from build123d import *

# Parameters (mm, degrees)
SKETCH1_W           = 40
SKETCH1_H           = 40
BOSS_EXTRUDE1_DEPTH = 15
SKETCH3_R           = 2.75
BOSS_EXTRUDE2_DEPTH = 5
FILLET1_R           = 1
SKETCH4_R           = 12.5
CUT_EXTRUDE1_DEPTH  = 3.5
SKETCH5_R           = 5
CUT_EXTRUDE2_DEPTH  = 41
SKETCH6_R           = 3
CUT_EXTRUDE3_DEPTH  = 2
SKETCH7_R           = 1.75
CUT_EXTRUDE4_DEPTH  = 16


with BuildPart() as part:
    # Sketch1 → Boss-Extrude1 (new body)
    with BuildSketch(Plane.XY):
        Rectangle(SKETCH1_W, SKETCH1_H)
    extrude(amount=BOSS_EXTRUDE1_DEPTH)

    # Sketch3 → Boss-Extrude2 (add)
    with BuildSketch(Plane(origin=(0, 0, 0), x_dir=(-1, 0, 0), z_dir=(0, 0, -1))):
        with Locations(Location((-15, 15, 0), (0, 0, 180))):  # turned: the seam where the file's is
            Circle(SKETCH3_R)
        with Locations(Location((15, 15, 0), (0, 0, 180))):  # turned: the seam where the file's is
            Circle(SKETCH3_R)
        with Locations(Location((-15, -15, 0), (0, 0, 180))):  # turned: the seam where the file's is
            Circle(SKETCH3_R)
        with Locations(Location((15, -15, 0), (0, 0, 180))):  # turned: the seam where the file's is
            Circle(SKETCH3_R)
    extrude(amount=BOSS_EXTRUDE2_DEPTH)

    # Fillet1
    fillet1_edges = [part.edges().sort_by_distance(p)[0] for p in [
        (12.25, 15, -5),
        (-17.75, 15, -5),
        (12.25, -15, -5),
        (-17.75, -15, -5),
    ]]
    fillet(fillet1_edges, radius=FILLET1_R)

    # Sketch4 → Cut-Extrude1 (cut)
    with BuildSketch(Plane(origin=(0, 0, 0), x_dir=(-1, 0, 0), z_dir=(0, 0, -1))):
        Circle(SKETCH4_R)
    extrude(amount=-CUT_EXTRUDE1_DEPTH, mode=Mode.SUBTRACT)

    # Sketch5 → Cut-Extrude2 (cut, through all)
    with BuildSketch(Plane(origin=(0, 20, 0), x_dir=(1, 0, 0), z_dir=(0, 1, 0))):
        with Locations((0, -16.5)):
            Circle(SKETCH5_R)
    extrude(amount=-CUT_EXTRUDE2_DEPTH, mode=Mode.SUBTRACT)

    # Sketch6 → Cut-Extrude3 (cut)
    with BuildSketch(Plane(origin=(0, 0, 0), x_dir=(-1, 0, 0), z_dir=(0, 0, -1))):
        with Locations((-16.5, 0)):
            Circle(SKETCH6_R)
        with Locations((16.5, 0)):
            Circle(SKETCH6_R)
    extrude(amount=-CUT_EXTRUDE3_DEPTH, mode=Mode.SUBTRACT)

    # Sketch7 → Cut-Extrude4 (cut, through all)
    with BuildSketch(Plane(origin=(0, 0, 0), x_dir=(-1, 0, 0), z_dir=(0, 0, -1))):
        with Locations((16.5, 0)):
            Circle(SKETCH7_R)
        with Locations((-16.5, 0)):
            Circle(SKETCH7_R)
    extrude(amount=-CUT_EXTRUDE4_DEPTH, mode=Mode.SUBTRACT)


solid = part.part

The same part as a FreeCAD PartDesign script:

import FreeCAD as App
import Part
import Sketcher
from FreeCAD import Vector
Q = App.Units.Quantity


def edges_at(feature, points):
    """Names of the edges that pass closest to the given points."""
    edges = feature.Shape.Edges
    near = lambda p: min(range(len(edges)), key=lambda i: edges[i].distToShape(Part.Vertex(*p))[0])
    return sorted({f"Edge{near(p) + 1}" for p in points})


def add_polygon(sketch, points):
    """Adds a closed chain of lines whose ends are joined by coincident constraints."""
    first, n = sketch.GeometryCount, len(points)
    for a, b in zip(points, points[1:] + points[:1]):
        sketch.addGeometry(Part.LineSegment(App.Vector(*a, 0), App.Vector(*b, 0)), False)
    for i in range(n):
        sketch.addConstraint(Sketcher.Constraint("Coincident", first + i, 2, first + (i + 1) % n, 1))

doc = App.newDocument("Part")
body = doc.addObject("PartDesign::Body", "Body")

sketch1 = body.newObject("Sketcher::SketchObject", "Sketch")
sketch1.AttachmentSupport = (doc.getObject("XY_Plane"), [""])
sketch1.MapMode = "FlatFace"
add_polygon(sketch1, [(-20, 20), (-20, -20), (20, -20), (20, 20)])
sketch1.addConstraint(Sketcher.Constraint("Vertical", 0))
sketch1.addConstraint(Sketcher.Constraint("Horizontal", 1))
sketch1.addConstraint(Sketcher.Constraint("Vertical", 2))
sketch1.addConstraint(Sketcher.Constraint("Horizontal", 3))
sketch1.addConstraint(Sketcher.Constraint("Symmetric", 0, 2, 2, 2, -1, 1))
sketch1.addConstraint(Sketcher.Constraint("Equal", 3, 0))
sketch1.addConstraint(Sketcher.Constraint("DistanceX", 1, 1, 1, 2, Q("40 mm")))
pad1 = body.newObject("PartDesign::Pad", "Pad")
pad1.Profile = sketch1
pad1.Length = 15

sketch2 = body.newObject("Sketcher::SketchObject", "Sketch001")
sketch2.AttachmentSupport = (doc.getObject("XY_Plane"), [""])
sketch2.MapMode = "FlatFace"
sketch2.addGeometry(Part.Circle(Vector(15, 15, 0), Vector(0, 0, 1), 2.75), False)
sketch2.addGeometry(Part.Circle(Vector(-15, 15, 0), Vector(0, 0, 1), 2.75), False)
sketch2.addGeometry(Part.Circle(Vector(15, -15, 0), Vector(0, 0, 1), 2.75), False)
sketch2.addGeometry(Part.Circle(Vector(-15, -15, 0), Vector(0, 0, 1), 2.75), False)
sketch2.addConstraint(Sketcher.Constraint("Equal", 0, 1))
sketch2.addConstraint(Sketcher.Constraint("Equal", 1, 2))
sketch2.addConstraint(Sketcher.Constraint("Equal", 2, 3))
sketch2.addConstraint(Sketcher.Constraint("Symmetric", 1, 3, 2, 3, -1, 1))
sketch2.addConstraint(Sketcher.Constraint("Symmetric", 0, 3, 3, 3, -1, 1))
sketch2.addConstraint(Sketcher.Constraint("Symmetric", 0, 3, 1, 3, -2))
sketch2.addConstraint(Sketcher.Constraint("Diameter", 0, Q("5.5 mm")))
sketch2.addConstraint(Sketcher.Constraint("DistanceX", -1, 1, 0, 3, Q("15 mm")))
sketch2.addConstraint(Sketcher.Constraint("DistanceY", -1, 1, 0, 3, Q("15 mm")))
pad2 = body.newObject("PartDesign::Pad", "Pad001")
pad2.Profile = sketch2
pad2.Length = 5
pad2.Reversed = True
doc.recompute()

fillet = body.newObject("PartDesign::Fillet", "Fillet")
fillet.Base = (pad2, edges_at(pad2, [
    (12.25, 15, -5),
    (-17.75, 15, -5),
    (12.25, -15, -5),
    (-17.75, -15, -5),
]))
fillet.Radius = 1

sketch3 = body.newObject("Sketcher::SketchObject", "Sketch002")
sketch3.AttachmentSupport = (doc.getObject("XY_Plane"), [""])
sketch3.MapMode = "FlatFace"
sketch3.addGeometry(Part.Circle(Vector(0, 0, 0), Vector(0, 0, 1), 12.5), False)
sketch3.addConstraint(Sketcher.Constraint("Coincident", 0, 3, -1, 1))
sketch3.addConstraint(Sketcher.Constraint("Diameter", 0, Q("25 mm")))
pocket1 = body.newObject("PartDesign::Pocket", "Pocket")
pocket1.Profile = sketch3
pocket1.Length = 3.5
pocket1.Reversed = True

sketch4 = body.newObject("Sketcher::SketchObject", "Sketch003")
sketch4.AttachmentSupport = (doc.getObject("XZ_Plane"), [""])
sketch4.MapMode = "FlatFace"
sketch4.AttachmentOffset = App.Placement(Vector(0, 0, -20), App.Rotation())
sketch4.addGeometry(Part.Circle(Vector(0, 16.5, 0), Vector(0, 0, 1), 5), False)
sketch4.addConstraint(Sketcher.Constraint("PointOnObject", 0, 3, -2))
sketch4.addConstraint(Sketcher.Constraint("Diameter", 0, Q("10 mm")))
sketch4.addConstraint(Sketcher.Constraint("DistanceY", -1, 1, 0, 3, Q("16.5 mm")))
pocket2 = body.newObject("PartDesign::Pocket", "Pocket001")
pocket2.Profile = sketch4
pocket2.Type = "ThroughAll"
pocket2.Reversed = True

sketch5 = body.newObject("Sketcher::SketchObject", "Sketch004")
sketch5.AttachmentSupport = (doc.getObject("XY_Plane"), [""])
sketch5.MapMode = "FlatFace"
sketch5.addGeometry(Part.Circle(Vector(16.5, 0, 0), Vector(0, 0, 1), 3), False)
sketch5.addGeometry(Part.Circle(Vector(-16.5, 0, 0), Vector(0, 0, 1), 3), False)
sketch5.addConstraint(Sketcher.Constraint("Equal", 0, 1))
sketch5.addConstraint(Sketcher.Constraint("Symmetric", 0, 3, 1, 3, -1, 1))
sketch5.addConstraint(Sketcher.Constraint("PointOnObject", 0, 3, -1))
sketch5.addConstraint(Sketcher.Constraint("Diameter", 0, Q("6 mm")))
sketch5.addConstraint(Sketcher.Constraint("DistanceX", 1, 3, 0, 3, Q("33 mm")))
pocket3 = body.newObject("PartDesign::Pocket", "Pocket002")
pocket3.Profile = sketch5
pocket3.Length = 2
pocket3.Reversed = True

sketch6 = body.newObject("Sketcher::SketchObject", "Sketch005")
sketch6.AttachmentSupport = (doc.getObject("XY_Plane"), [""])
sketch6.MapMode = "FlatFace"
sketch6.addGeometry(Part.Circle(Vector(-16.5, 0, 0), Vector(0, 0, 1), 1.75), False)
sketch6.addGeometry(Part.Circle(Vector(16.5, 0, 0), Vector(0, 0, 1), 1.75), False)
sketch6.addConstraint(Sketcher.Constraint("Equal", 0, 1))
sketch6.addConstraint(Sketcher.Constraint("Symmetric", 0, 3, 1, 3, -1, 1))
sketch6.addConstraint(Sketcher.Constraint("PointOnObject", 0, 3, -1))
sketch6.addConstraint(Sketcher.Constraint("Diameter", 0, Q("3.5 mm")))
sketch6.addConstraint(Sketcher.Constraint("DistanceX", 0, 3, 1, 3, Q("33 mm")))
pocket4 = body.newObject("PartDesign::Pocket", "Pocket003")
pocket4.Profile = sketch6
pocket4.Type = "ThroughAll"
pocket4.Reversed = True

doc.recompute()
